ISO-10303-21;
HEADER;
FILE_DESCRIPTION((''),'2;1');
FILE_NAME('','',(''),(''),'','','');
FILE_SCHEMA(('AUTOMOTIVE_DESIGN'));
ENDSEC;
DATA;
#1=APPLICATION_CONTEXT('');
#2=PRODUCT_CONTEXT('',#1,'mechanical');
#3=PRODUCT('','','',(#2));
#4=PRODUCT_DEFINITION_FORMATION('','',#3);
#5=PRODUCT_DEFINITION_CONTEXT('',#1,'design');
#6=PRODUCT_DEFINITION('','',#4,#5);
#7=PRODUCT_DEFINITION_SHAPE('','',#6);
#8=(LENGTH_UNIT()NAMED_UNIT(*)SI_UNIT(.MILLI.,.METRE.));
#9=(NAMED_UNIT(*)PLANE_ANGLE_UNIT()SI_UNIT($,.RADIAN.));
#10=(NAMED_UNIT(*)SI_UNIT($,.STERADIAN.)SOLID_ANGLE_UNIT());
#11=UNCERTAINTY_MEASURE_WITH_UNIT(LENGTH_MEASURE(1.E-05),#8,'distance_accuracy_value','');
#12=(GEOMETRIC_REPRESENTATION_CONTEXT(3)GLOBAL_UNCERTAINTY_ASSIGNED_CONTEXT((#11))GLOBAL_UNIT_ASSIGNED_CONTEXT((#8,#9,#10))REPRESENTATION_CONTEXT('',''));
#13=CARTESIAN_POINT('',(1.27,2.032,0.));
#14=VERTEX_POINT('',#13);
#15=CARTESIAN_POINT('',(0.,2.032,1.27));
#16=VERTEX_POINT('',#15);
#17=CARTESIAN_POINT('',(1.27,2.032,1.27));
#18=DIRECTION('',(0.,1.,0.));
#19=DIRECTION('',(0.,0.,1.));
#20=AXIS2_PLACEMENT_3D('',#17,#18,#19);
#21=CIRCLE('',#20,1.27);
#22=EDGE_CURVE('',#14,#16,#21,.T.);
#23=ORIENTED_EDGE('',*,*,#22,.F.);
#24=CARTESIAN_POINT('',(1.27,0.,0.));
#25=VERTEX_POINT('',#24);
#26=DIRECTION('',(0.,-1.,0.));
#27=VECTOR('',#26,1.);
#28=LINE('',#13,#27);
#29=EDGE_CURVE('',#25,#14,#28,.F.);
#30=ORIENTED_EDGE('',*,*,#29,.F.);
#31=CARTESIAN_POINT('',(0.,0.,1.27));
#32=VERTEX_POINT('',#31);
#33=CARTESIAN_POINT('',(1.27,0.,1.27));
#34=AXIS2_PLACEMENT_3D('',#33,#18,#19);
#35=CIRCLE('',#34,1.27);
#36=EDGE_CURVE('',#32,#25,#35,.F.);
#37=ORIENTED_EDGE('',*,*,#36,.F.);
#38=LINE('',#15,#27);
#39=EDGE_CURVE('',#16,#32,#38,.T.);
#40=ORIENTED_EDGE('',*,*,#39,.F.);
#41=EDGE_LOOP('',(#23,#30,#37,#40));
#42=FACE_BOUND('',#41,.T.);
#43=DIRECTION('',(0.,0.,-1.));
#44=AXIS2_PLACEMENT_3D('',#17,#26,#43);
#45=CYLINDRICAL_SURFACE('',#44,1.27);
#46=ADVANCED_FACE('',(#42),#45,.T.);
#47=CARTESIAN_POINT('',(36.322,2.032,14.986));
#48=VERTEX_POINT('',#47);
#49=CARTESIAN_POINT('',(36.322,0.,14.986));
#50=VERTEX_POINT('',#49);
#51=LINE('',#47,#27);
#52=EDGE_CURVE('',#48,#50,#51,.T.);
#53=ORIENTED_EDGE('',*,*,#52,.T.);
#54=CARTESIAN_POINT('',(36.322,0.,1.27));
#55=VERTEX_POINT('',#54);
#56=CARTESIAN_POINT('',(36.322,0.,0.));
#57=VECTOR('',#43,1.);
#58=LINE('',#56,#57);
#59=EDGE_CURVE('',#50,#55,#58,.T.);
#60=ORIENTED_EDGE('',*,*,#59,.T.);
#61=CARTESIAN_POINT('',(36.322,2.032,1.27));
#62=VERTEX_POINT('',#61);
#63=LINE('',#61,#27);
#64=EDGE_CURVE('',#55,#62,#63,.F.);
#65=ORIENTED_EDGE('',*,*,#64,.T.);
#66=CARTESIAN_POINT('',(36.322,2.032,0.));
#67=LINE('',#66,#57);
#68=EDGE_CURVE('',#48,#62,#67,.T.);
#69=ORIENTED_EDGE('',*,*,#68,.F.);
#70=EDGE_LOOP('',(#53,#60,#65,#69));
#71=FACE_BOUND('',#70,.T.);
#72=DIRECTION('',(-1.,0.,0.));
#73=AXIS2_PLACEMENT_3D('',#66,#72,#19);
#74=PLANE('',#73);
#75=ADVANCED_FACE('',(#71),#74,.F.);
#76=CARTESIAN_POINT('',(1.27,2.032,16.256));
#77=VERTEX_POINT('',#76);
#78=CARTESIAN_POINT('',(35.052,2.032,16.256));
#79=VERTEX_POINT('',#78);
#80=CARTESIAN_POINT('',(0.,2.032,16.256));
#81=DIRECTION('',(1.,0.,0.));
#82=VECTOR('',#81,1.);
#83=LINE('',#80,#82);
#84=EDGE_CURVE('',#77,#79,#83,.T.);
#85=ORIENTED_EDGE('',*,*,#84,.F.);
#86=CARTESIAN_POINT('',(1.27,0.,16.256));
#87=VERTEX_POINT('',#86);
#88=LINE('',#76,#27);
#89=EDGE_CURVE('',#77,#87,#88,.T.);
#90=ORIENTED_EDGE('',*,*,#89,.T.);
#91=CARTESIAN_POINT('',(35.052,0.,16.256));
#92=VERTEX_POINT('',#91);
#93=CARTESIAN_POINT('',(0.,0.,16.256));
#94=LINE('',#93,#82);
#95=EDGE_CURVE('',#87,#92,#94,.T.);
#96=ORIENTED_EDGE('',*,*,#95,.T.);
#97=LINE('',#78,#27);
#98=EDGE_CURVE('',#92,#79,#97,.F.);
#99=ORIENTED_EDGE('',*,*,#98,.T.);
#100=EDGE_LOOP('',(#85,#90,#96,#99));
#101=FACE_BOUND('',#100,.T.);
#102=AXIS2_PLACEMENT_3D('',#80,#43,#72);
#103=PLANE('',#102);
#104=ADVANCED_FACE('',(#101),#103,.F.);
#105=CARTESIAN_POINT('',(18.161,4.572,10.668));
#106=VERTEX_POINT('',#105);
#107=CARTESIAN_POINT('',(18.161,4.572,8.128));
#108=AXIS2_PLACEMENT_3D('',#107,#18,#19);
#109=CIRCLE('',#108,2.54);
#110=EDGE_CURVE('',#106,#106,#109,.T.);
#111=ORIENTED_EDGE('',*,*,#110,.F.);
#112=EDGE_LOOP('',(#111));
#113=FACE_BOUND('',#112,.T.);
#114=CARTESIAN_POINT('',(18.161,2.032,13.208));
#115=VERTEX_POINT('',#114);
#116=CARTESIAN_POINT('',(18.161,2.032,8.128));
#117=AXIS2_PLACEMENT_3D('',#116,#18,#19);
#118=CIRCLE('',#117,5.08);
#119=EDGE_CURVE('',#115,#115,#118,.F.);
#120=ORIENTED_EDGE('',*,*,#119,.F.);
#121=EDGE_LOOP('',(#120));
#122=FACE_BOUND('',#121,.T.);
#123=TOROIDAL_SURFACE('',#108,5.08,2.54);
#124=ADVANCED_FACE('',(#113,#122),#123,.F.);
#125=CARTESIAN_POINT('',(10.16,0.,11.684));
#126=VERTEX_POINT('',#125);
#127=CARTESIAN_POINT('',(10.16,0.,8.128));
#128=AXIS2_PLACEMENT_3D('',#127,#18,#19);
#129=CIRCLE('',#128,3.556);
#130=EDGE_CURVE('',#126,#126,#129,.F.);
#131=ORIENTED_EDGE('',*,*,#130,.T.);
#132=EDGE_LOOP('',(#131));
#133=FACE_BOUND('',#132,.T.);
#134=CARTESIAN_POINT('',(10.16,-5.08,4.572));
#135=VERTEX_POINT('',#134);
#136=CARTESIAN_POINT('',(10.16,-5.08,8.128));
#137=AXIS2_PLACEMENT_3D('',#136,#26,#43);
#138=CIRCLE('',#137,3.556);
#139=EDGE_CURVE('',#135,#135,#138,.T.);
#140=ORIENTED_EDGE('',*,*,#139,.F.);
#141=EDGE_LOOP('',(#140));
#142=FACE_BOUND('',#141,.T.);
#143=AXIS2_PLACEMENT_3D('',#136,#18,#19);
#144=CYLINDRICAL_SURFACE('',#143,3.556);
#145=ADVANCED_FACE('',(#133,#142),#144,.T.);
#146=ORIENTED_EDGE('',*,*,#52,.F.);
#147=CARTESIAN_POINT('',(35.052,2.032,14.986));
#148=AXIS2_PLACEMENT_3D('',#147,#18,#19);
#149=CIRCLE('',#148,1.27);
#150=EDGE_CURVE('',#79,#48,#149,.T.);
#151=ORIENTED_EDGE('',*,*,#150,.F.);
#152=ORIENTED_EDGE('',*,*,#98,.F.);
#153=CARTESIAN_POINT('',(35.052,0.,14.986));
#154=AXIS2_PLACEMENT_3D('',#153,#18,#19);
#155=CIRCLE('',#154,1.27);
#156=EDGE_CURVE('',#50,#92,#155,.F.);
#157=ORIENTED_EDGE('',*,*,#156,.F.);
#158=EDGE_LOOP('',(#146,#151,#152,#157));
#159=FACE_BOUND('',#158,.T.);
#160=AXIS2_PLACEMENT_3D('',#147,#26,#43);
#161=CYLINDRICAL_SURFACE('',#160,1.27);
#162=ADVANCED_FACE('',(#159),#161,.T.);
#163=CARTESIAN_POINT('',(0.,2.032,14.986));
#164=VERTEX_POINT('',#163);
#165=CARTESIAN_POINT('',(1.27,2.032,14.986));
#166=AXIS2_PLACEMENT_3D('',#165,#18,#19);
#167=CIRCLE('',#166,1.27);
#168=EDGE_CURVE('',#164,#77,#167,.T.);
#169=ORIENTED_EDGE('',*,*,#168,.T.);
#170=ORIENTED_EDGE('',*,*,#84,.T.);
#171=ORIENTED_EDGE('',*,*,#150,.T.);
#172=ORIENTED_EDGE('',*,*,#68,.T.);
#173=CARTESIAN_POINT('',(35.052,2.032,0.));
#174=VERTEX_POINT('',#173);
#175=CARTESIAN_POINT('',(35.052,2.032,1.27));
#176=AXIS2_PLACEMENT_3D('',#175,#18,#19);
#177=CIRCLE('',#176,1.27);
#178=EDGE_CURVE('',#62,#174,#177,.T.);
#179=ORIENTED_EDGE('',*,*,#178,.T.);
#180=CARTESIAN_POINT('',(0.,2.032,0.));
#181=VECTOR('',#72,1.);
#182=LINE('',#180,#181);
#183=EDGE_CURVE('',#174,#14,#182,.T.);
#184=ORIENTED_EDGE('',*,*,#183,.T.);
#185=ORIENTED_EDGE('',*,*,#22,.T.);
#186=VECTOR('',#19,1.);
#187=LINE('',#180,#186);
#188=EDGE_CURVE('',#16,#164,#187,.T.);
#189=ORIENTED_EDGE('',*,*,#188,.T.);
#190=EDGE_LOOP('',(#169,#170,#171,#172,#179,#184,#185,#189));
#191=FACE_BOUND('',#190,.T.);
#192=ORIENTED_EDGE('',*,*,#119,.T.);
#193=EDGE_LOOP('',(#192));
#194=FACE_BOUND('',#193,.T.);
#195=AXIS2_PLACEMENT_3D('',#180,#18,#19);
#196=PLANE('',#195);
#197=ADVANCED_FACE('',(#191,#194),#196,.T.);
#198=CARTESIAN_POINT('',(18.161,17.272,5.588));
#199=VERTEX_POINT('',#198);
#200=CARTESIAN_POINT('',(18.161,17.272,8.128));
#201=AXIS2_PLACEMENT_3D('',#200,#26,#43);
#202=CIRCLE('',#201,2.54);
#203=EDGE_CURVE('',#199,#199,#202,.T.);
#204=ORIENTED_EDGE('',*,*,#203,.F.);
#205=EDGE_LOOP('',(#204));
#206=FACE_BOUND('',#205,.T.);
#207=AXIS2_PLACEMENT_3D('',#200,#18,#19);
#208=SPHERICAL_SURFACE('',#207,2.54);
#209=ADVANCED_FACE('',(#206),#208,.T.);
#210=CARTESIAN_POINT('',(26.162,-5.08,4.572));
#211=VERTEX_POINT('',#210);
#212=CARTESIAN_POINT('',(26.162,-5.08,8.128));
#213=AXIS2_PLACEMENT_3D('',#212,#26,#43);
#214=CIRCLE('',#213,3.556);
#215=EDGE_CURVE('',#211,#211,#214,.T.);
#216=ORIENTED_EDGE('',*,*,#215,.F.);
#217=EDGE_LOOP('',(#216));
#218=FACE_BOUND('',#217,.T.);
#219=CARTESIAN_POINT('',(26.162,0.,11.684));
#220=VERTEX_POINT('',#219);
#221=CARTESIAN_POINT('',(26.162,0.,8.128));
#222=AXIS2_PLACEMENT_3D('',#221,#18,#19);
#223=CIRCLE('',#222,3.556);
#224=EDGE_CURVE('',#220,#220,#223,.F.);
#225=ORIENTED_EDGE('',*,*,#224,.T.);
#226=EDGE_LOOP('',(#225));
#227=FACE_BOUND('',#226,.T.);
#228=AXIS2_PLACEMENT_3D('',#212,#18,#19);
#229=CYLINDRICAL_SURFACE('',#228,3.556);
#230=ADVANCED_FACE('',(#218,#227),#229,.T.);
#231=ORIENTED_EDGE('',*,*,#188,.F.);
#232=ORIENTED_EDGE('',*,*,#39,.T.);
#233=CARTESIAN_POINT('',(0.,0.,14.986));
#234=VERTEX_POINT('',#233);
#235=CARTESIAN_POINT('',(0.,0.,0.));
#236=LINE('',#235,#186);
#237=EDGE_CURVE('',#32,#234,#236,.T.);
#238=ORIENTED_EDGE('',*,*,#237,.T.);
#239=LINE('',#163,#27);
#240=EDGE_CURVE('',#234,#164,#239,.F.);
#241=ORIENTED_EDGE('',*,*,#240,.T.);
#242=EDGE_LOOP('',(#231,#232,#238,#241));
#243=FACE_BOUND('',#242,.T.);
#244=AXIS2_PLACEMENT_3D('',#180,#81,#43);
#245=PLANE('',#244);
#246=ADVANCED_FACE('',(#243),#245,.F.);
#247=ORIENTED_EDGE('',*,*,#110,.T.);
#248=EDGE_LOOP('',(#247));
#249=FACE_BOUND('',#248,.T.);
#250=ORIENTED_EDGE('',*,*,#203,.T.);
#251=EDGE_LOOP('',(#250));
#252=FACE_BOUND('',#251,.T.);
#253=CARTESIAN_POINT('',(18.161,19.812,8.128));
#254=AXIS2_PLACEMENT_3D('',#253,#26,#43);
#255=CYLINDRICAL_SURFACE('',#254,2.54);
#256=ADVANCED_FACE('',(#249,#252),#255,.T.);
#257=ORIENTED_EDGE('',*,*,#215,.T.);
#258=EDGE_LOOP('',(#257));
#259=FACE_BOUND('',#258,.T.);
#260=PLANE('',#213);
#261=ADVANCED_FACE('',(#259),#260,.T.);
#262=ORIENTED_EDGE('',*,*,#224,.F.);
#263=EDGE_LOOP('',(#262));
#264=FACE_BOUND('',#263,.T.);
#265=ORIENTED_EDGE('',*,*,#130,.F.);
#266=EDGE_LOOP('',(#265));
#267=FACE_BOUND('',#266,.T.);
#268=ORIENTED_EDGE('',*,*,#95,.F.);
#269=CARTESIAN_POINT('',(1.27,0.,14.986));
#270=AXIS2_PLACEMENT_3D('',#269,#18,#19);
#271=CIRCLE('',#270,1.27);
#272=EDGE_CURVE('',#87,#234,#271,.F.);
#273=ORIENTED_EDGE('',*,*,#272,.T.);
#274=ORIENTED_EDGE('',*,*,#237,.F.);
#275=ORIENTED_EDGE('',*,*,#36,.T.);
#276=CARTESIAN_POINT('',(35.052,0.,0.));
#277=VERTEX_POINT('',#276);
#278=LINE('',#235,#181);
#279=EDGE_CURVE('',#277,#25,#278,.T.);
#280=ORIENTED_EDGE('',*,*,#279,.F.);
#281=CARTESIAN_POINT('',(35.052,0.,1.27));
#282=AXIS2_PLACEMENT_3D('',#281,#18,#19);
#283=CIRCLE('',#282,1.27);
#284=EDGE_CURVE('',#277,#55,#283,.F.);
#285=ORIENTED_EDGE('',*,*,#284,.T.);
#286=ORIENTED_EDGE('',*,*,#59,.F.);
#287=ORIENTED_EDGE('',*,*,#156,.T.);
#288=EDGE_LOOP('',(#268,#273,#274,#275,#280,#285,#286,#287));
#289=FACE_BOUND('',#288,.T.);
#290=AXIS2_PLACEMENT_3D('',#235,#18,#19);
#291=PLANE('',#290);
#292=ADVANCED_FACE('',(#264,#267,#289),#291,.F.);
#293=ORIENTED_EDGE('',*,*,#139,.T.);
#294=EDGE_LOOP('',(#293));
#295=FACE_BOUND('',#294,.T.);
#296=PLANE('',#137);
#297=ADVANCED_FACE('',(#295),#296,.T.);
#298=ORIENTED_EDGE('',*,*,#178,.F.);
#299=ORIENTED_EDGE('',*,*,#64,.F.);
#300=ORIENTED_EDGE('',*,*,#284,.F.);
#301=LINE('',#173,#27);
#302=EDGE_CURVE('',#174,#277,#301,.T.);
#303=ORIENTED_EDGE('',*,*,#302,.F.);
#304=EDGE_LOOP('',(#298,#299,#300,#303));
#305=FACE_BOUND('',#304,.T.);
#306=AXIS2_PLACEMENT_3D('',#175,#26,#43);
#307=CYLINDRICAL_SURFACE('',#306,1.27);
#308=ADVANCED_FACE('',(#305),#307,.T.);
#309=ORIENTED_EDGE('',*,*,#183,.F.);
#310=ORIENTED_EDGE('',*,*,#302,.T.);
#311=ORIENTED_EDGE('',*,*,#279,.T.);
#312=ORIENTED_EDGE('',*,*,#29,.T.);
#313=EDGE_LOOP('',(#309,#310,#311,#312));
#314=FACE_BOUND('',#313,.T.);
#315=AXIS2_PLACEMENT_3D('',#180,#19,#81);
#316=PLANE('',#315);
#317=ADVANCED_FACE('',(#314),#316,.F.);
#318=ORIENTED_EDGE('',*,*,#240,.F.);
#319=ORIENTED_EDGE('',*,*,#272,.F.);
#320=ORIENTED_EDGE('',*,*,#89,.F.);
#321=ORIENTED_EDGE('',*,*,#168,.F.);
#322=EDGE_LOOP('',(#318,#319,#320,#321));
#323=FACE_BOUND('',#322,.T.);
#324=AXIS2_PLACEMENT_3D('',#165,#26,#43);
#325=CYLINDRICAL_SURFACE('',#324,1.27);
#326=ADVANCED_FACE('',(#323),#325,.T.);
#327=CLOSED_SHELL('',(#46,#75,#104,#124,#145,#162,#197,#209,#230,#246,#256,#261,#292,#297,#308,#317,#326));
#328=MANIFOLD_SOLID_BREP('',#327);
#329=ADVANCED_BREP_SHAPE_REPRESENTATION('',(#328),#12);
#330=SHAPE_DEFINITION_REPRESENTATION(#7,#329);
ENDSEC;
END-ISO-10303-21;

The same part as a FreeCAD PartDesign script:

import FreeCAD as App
import Part
import Sketcher
Q = App.Units.Quantity


def edges_at(feature, points):
    """Names of the edges that pass closest to the given points."""
    edges = feature.Shape.Edges
    near = lambda p: min(range(len(edges)), key=lambda i: edges[i].distToShape(Part.Vertex(*p))[0])
    return sorted({f"Edge{near(p) + 1}" for p in points})


def add_polygon(sketch, points):
    """Adds a closed chain of lines whose ends are joined by coincident constraints."""
    first, n = sketch.GeometryCount, len(points)
    for a, b in zip(points, points[1:] + points[:1]):
        sketch.addGeometry(Part.LineSegment(App.Vector(*a, 0), App.Vector(*b, 0)), False)
    for i in range(n):
        sketch.addConstraint(Sketcher.Constraint("Coincident", first + i, 2, first + (i + 1) % n, 1))

doc = App.newDocument("Part")
body = doc.addObject("PartDesign::Body", "Body")

# Sketch on XZ plane
sketch1 = body.newObject("Sketcher::SketchObject", "Sketch")
sketch1.AttachmentSupport = (doc.getObject("XZ_Plane"), [""])
sketch1.MapMode = "FlatFace"
add_polygon(sketch1, [(0, 0), (0, 16.256), (36.322, 16.256), (36.322, 0)])  # lines 0-3
sketch1.addConstraint([
    Sketcher.Constraint("Vertical", 0),
    Sketcher.Constraint("Horizontal", 1),
    Sketcher.Constraint("Vertical", 2),
    Sketcher.Constraint("Horizontal", 3),
    Sketcher.Constraint("Coincident", 3, 2, -1, 1),
    Sketcher.Constraint("DistanceX", 1, 1, 1, 2, Q("1.43 in")),
    Sketcher.Constraint("DistanceY", 0, 1, 0, 2, Q("0.64 in")),
])
pad1 = body.newObject("PartDesign::Pad", "Pad")
pad1.Profile = sketch1
pad1.Length = Q("0.08 in")
pad1.Reversed = True

# Sketch on XZ plane
sketch2 = body.newObject("Sketcher::SketchObject", "Sketch001")
sketch2.AttachmentSupport = (doc.getObject("XZ_Plane"), [""])
sketch2.MapMode = "FlatFace"
sketch2.AttachmentOffset = App.Placement(App.Vector(0, 0, -0.08 * 25.4), App.Rotation())
sketch2.addGeometry(Part.Circle(App.Vector(18.161, 8.128, 0), App.Vector(0, 0, 1), 2.54), False)
sketch2.addConstraint([
    Sketcher.Constraint("Diameter", 0, Q("0.2 in")),
    Sketcher.Constraint("DistanceY", -1, 1, 0, 3, Q("0.32 in")),
    Sketcher.Constraint("DistanceX", -1, 1, 0, 3, Q("0.715 in")),
])
pad2 = body.newObject("PartDesign::Pad", "Pad001")
pad2.Profile = sketch2
pad2.Length = Q("0.7 in")
pad2.Reversed = True
doc.recompute()

fillet = body.newObject("PartDesign::Fillet", "Fillet")
fillet.Base = (pad2, edges_at(pad2, [(18.161, 19.812, 5.588)]))
fillet.Radius = Q("0.1 in")
doc.recompute()

fillet2 = body.newObject("PartDesign::Fillet", "Fillet001")
fillet2.Base = (fillet, edges_at(fillet, [(18.161, 2.032, 5.588)]))
fillet2.Radius = Q("0.1 in")
doc.recompute()

fillet3 = body.newObject("PartDesign::Fillet", "Fillet002")
fillet3.Base = (fillet2, edges_at(fillet2, [
    (0, 1.016, 0),
    (36.322, 1.016, 0),
    (36.322, 1.016, 16.256),
    (0, 1.016, 16.256),
]))
fillet3.Radius = Q("0.05 in")

# Sketch on XZ plane
sketch3 = body.newObject("Sketcher::SketchObject", "Sketch002")
sketch3.AttachmentSupport = (doc.getObject("XZ_Plane"), [""])
sketch3.MapMode = "FlatFace"
sketch3.addGeometry([
    Part.Circle(App.Vector(10.16, 8.128, 0), App.Vector(0, 0, 1), 3.556),
    Part.Circle(App.Vector(26.162, 8.128, 0), App.Vector(0, 0, 1), 3.556),
], False)
sketch3.addConstraint([
    Sketcher.Constraint("Equal", 0, 1),
    Sketcher.Constraint("Horizontal", 0, 3, 1, 3),
    Sketcher.Constraint("Diameter", 0, Q("0.28 in")),
    Sketcher.Constraint("DistanceX", -1, 1, 0, 3, Q("0.4 in")),
    Sketcher.Constraint("DistanceY", -1, 1, 0, 3, Q("0.32 in")),
    Sketcher.Constraint("DistanceX", -1, 1, 1, 3, Q("1.03 in")),
])
pad3 = body.newObject("PartDesign::Pad", "Pad002")
pad3.Profile = sketch3
pad3.Length = Q("0.2 in")

doc.recompute()
